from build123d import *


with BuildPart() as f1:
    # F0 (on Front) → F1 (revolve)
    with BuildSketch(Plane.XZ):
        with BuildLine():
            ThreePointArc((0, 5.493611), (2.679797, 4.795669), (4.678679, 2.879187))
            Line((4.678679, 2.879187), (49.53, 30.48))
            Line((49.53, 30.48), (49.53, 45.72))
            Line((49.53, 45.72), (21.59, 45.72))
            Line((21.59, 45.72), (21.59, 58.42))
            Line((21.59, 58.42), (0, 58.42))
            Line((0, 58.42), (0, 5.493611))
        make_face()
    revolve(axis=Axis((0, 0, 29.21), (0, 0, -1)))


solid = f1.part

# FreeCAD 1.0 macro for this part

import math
import FreeCAD as App
import Part
import Sketcher
Q = App.Units.Quantity

doc = App.newDocument("Part")
body = doc.addObject("PartDesign::Body", "Body")

# Sketch on XZ plane
sketch1 = doc.addObject("Sketcher::SketchObject", "Sketch")
body.addObject(sketch1)
sketch1.AttachmentSupport = (doc.XZ_Plane, [""])
sketch1.MapMode = "FlatFace"
sketch1.addGeometry([
    Part.ArcOfCircle(Part.Circle(App.Vector(0, 0, 0), App.Vector(0, 0, 1), 5), math.radians(32), math.radians(90)),  # 0
    Part.LineSegment(App.Vector(5, 3, 0), App.Vector(50, 30, 0)),  # 1
    Part.LineSegment(App.Vector(50, 30, 0), App.Vector(50, 46, 0)),  # 2
    Part.LineSegment(App.Vector(50, 46, 0), App.Vector(22, 46, 0)),  # 3
    Part.LineSegment(App.Vector(22, 46, 0), App.Vector(22, 58, 0)),  # 4
    Part.LineSegment(App.Vector(22, 58, 0), App.Vector(0, 58, 0)),  # 5
    Part.LineSegment(App.Vector(0, 58, 0), App.Vector(0, 5, 0)),  # 6
], False)
sketch1.addConstraint([
    Sketcher.Constraint("Coincident", 0, 1, 1, 1),
    Sketcher.Constraint("Coincident", 1, 2, 2, 1),
    Sketcher.Constraint("Coincident", 2, 2, 3, 1),
    Sketcher.Constraint("Coincident", 3, 2, 4, 1),
    Sketcher.Constraint("Coincident", 4, 2, 5, 1),
    Sketcher.Constraint("Coincident", 5, 2, 6, 1),
    Sketcher.Constraint("Coincident", 6, 2, 0, 2),
    Sketcher.Constraint("Vertical", 2),
    Sketcher.Constraint("Horizontal", 3),
    Sketcher.Constraint("Vertical", 4),
    Sketcher.Constraint("Horizontal", 5),
    Sketcher.Constraint("Vertical", 6),
    Sketcher.Constraint("Coincident", 0, 3, -1, 1),
    Sketcher.Constraint("PointOnObject", 5, 2, -2),
    Sketcher.Constraint("DistanceX", 3, 2, 3, 1, Q("1.1 in")),
    Sketcher.Constraint("DistanceY", 2, 1, 2, 2, Q("0.6 in")),
    Sketcher.Constraint("DistanceY", 4, 1, 4, 2, Q("0.5 in")),
    Sketcher.Constraint("DistanceX", 5, 2, 5, 1, Q("0.85 in")),
    Sketcher.Constraint("DistanceY", -1, 1, 1, 2, Q("1.2 in")),
    Sketcher.Constraint("DistanceX", -1, 1, 0, 1, Q("0.1842 in")),
    Sketcher.Constraint("Radius", 0, Q("5.493614 mm")),
])
revolution = doc.addObject("PartDesign::Revolution", "Revolution")
body.addObject(revolution)
revolution.Profile = sketch1
revolution.ReferenceAxis = (sketch1, ["V_Axis"])
revolution.Angle = 360

doc.recompute()
